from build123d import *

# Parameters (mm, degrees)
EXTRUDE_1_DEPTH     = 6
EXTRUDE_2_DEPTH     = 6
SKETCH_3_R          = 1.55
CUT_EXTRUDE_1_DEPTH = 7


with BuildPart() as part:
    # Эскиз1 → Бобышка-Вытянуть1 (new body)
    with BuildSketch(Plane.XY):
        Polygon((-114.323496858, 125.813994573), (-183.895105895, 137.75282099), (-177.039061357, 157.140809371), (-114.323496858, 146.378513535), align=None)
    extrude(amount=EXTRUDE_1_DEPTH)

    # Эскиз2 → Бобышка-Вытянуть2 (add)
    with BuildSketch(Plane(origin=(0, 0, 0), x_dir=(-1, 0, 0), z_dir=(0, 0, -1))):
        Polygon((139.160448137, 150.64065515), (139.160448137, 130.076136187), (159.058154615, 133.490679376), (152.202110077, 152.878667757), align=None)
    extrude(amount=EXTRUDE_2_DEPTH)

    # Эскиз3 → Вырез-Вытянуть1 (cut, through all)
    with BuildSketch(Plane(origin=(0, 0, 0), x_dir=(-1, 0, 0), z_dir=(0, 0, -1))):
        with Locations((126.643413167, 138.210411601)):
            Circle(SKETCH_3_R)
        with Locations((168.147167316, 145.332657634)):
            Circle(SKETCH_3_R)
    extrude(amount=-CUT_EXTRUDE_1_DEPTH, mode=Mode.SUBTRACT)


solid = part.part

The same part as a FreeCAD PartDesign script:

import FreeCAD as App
import Part
import Sketcher


def add_polygon(sketch, points):
    """Adds a closed chain of lines whose ends are joined by coincident constraints."""
    first, n = sketch.GeometryCount, len(points)
    for a, b in zip(points, points[1:] + points[:1]):
        sketch.addGeometry(Part.LineSegment(App.Vector(*a, 0), App.Vector(*b, 0)), False)
    for i in range(n):
        sketch.addConstraint(Sketcher.Constraint("Coincident", first + i, 2, first + (i + 1) % n, 1))

doc = App.newDocument("Part")
body = doc.addObject("PartDesign::Body", "Body")

sketch1 = body.newObject("Sketcher::SketchObject", "Sketch")
sketch1.AttachmentSupport = (doc.getObject("XY_Plane"), [""])
sketch1.MapMode = "FlatFace"
add_polygon(sketch1, [(-184, 138), (-114, 126), (-114, 146), (-177, 157)])
sketch1.addConstraint(Sketcher.Constraint("Vertical", 1))
sketch1.addConstraint(Sketcher.Constraint("Parallel", 0, 2))
sketch1.addConstraint(Sketcher.Constraint("DistanceY", 1, 1, 1, 2, 20.564519))
sketch1.addConstraint(Sketcher.Constraint("Distance", 3, 20.564519))
sketch1.addConstraint(Sketcher.Constraint("DistanceX", 2, 2, -1, 1, 177.039061))
sketch1.addConstraint(Sketcher.Constraint("DistanceY", -1, 1, 2, 2, 157.140809))
sketch1.addConstraint(Sketcher.Constraint("DistanceY", -1, 1, 3, 2, 137.752821))
sketch1.addConstraint(Sketcher.Constraint("DistanceX", 3, 2, 1, 2, 69.571609))
pad1 = body.newObject("PartDesign::Pad", "Pad")
pad1.Profile = sketch1
pad1.Length = 6

sketch2 = body.newObject("Sketcher::SketchObject", "Sketch001")
sketch2.AttachmentSupport = (doc.getObject("XY_Plane"), [""])
sketch2.MapMode = "FlatFace"
add_polygon(sketch2, [(-139, 151), (-139, 130), (-159, 133), (-152, 153)])
sketch2.addConstraint(Sketcher.Constraint("Vertical", 0))
sketch2.addConstraint(Sketcher.Constraint("Parallel", 1, 3))
sketch2.addConstraint(Sketcher.Constraint("DistanceY", 0, 2, 0, 1, 20.564519))
sketch2.addConstraint(Sketcher.Constraint("Distance", 2, 20.564519))
sketch2.addConstraint(Sketcher.Constraint("DistanceX", 0, 2, -1, 1, 139.160448))
sketch2.addConstraint(Sketcher.Constraint("DistanceY", -1, 1, 1, 2, 133.490679))
sketch2.addConstraint(Sketcher.Constraint("DistanceX", 2, 2, -1, 1, 152.20211))
sketch2.addConstraint(Sketcher.Constraint("DistanceY", 1, 2, 2, 2, 19.387988))
pad2 = body.newObject("PartDesign::Pad", "Pad001")
pad2.Profile = sketch2
pad2.Length = 6
pad2.Reversed = True

sketch3 = body.newObject("Sketcher::SketchObject", "Sketch002")
sketch3.AttachmentSupport = (doc.getObject("XY_Plane"), [""])
sketch3.MapMode = "FlatFace"
sketch3.addGeometry(Part.Circle(App.Vector(-126.6, 138.2, 0), App.Vector(0, 0, 1), 1.6), False)
sketch3.addGeometry(Part.Circle(App.Vector(-168.1, 145.3, 0), App.Vector(0, 0, 1), 1.6), False)
sketch3.addConstraint(Sketcher.Constraint("Equal", 0, 1))
sketch3.addConstraint(Sketcher.Constraint("Diameter", 0, 3.1))
sketch3.addConstraint(Sketcher.Constraint("DistanceY", -1, 1, 0, 3, 138.210412))
sketch3.addConstraint(Sketcher.Constraint("DistanceX", 0, 3, -1, 1, 126.643413))
sketch3.addConstraint(Sketcher.Constraint("DistanceX", 1, 3, -1, 1, 168.147167))
sketch3.addConstraint(Sketcher.Constraint("DistanceY", -1, 1, 1, 3, 145.332658))
pocket1 = body.newObject("PartDesign::Pocket", "Pocket")
pocket1.Profile = sketch3
pocket1.Type = "ThroughAll"
pocket1.Reversed = True

doc.recompute()
